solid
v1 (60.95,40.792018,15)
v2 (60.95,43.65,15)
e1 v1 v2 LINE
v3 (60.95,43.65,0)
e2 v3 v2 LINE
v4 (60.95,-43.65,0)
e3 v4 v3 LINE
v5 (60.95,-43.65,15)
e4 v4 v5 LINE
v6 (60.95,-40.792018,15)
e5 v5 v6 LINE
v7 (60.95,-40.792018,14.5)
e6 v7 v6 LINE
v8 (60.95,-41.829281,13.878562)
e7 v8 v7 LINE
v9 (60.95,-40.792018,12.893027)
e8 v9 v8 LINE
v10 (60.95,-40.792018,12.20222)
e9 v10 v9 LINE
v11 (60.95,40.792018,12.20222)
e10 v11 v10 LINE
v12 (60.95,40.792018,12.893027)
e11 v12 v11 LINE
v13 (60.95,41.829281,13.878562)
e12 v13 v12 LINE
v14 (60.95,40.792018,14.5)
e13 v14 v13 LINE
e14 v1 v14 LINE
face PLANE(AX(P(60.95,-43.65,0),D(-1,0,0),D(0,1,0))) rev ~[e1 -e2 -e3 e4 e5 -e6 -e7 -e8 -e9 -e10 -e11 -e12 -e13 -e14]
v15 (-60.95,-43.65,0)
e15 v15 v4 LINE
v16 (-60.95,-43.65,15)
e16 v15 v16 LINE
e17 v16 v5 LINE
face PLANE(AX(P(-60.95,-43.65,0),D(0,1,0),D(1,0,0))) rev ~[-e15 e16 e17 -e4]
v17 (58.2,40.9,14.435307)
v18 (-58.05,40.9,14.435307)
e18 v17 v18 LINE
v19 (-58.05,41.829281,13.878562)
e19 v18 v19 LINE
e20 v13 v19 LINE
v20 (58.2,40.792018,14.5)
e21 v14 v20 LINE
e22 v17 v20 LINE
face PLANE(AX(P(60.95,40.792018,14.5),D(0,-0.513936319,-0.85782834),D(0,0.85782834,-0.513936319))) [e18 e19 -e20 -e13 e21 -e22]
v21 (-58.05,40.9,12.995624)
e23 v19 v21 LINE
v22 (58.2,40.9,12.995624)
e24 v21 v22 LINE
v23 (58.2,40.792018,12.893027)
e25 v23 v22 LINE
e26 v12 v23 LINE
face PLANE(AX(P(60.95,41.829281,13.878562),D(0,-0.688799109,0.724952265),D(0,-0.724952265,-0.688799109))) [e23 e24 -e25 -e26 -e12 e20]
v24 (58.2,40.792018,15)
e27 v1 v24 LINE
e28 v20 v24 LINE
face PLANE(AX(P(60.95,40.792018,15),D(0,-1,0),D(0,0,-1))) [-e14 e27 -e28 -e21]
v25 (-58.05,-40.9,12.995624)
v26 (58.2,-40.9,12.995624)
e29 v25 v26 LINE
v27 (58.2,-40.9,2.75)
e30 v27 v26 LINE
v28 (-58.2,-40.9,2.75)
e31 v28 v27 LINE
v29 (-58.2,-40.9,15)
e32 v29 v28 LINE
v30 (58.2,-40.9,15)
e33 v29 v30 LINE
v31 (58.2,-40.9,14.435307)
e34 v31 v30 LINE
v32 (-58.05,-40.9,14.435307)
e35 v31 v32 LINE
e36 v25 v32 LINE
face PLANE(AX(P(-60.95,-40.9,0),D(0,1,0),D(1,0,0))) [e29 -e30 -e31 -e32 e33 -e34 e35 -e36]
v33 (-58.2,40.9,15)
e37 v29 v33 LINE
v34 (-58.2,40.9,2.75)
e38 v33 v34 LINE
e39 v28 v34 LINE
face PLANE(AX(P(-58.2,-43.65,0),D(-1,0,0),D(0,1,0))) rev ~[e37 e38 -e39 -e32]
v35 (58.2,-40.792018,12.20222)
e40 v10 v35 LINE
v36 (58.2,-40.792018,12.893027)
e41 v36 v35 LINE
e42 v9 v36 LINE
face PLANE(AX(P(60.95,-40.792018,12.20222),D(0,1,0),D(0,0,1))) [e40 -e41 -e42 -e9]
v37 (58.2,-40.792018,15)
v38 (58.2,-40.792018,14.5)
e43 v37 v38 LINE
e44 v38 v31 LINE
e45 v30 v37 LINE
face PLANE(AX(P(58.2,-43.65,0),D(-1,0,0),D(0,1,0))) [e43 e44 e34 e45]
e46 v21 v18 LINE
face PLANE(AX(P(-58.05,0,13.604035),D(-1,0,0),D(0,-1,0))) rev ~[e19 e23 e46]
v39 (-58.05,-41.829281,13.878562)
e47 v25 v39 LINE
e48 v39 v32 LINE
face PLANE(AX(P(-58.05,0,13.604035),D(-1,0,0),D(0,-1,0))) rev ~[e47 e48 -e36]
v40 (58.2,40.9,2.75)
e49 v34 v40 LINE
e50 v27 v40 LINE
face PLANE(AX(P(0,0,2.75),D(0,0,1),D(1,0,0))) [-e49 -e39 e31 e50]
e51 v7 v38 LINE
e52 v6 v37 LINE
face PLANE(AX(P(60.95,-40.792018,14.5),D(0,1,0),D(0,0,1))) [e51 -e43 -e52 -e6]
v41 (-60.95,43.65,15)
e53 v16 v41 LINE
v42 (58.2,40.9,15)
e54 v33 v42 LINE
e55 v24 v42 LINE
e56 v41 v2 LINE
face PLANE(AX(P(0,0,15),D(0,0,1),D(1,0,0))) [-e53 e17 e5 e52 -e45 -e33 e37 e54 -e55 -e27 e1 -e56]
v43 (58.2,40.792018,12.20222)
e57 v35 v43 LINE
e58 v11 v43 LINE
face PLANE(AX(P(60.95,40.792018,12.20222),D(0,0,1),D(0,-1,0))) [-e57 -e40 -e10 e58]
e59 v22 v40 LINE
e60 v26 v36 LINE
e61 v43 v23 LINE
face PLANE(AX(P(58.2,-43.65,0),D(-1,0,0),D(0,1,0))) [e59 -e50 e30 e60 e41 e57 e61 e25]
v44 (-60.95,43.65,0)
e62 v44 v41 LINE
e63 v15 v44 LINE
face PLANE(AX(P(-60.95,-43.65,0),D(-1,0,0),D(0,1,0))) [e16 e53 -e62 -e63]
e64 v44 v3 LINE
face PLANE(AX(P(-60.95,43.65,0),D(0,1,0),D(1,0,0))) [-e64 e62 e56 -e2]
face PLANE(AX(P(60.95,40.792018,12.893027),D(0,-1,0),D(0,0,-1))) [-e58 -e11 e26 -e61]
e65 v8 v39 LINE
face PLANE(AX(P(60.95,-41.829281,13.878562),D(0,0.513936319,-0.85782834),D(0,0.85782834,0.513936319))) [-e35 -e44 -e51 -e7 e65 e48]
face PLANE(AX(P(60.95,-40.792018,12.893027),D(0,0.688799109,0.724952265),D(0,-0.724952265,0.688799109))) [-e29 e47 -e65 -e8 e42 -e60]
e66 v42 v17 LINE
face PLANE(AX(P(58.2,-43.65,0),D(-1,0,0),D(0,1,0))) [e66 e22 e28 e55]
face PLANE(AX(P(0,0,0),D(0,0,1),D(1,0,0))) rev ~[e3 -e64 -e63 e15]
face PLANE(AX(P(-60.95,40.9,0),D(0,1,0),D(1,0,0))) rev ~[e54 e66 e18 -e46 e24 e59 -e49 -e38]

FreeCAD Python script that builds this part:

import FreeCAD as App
import Part
import Sketcher

V = App.Vector
Q = App.Units.Quantity


def faces_at(feature, points):
    """Names of the faces that lie closest to the given points."""
    faces = feature.Shape.Faces
    near = lambda p: min(range(len(faces)), key=lambda i: faces[i].distToShape(Part.Vertex(*p))[0])
    return sorted({f"Face{near(p) + 1}" for p in points})


def add_polygon(sketch, points):
    """Adds a closed chain of lines whose ends are joined by coincident constraints."""
    first, n = sketch.GeometryCount, len(points)
    for a, b in zip(points, points[1:] + points[:1]):
        sketch.addGeometry(Part.LineSegment(App.Vector(*a, 0), App.Vector(*b, 0)), False)
    for i in range(n):
        sketch.addConstraint(Sketcher.Constraint("Coincident", first + i, 2, first + (i + 1) % n, 1))

doc = App.newDocument("Part")
body = doc.addObject("PartDesign::Body", "Body")

sketch1 = body.newObject("Sketcher::SketchObject", "Sketch")
sketch1.AttachmentSupport = (doc.getObject("XY_Plane"), [""])
sketch1.MapMode = "FlatFace"
add_polygon(sketch1, [(-54.45, 38.15), (-54.45, -38.15), (54.45, -38.15), (54.45, 38.15)])
sketch1.addConstraint(Sketcher.Constraint("Vertical", 0))
sketch1.addConstraint(Sketcher.Constraint("Horizontal", 1))
sketch1.addConstraint(Sketcher.Constraint("Vertical", 2))
sketch1.addConstraint(Sketcher.Constraint("Horizontal", 3))
sketch1.addConstraint(Sketcher.Constraint("Symmetric", 0, 2, 2, 2, -1, 1))
sketch1.addConstraint(Sketcher.Constraint("DistanceX", 1, 1, 1, 2, Q("108.9 mm")))
sketch1.addConstraint(Sketcher.Constraint("DistanceY", 0, 2, 0, 1, Q("76.3 mm")))
pad1 = body.newObject("PartDesign::Pad", "Pad")
pad1.Profile = sketch1
pad1.Length = 15

sketch2 = body.newObject("Sketcher::SketchObject", "Sketch001")
sketch2.AttachmentSupport = (doc.getObject("XY_Plane"), [""])
sketch2.MapMode = "FlatFace"
add_polygon(sketch2, [(-60.95, 43.65), (-60.95, -43.65), (60.95, -43.65), (60.95, 43.65)])
sketch2.addConstraint(Sketcher.Constraint("Vertical", 0))
sketch2.addConstraint(Sketcher.Constraint("Horizontal", 1))
sketch2.addConstraint(Sketcher.Constraint("Vertical", 2))
sketch2.addConstraint(Sketcher.Constraint("Horizontal", 3))
sketch2.addConstraint(Sketcher.Constraint("Symmetric", 0, 2, 2, 2, -1, 1))
sketch2.addConstraint(Sketcher.Constraint("DistanceX", 1, 1, 1, 2, Q("121.9 mm")))
sketch2.addConstraint(Sketcher.Constraint("DistanceY", 0, 2, 0, 1, Q("87.3 mm")))
pad2 = body.newObject("PartDesign::Pad", "Pad001")
pad2.Profile = sketch2
pad2.Length = 15
doc.recompute()

thickness = body.newObject("PartDesign::Thickness", "Thickness")
thickness.Base = (pad2, faces_at(pad2, [(0, 0, 15)]))
thickness.Value = 2.75
thickness.Reversed = True
thickness.Join = "Arc"

sketch3 = body.newObject("Sketcher::SketchObject", "Sketch002")
sketch3.AttachmentSupport = (doc.getObject("YZ_Plane"), [""])
sketch3.MapMode = "FlatFace"
sketch3.AttachmentOffset = App.Placement(V(0, 0, 60.95), App.Rotation())
add_polygon(sketch3, [(-40.792018, 14.5), (-40.792018, 15), (40.792018, 15), (40.792018, 14.5), (41.829281, 13.878562), (40.792018, 12.893027), (40.792018, 12.20222), (-40.792018, 12.20222), (-40.792018, 12.893027), (-41.829281, 13.878562)])
sketch3.addConstraint(Sketcher.Constraint("Vertical", 0))
sketch3.addConstraint(Sketcher.Constraint("Horizontal", 1))
sketch3.addConstraint(Sketcher.Constraint("Vertical", 2))
sketch3.addConstraint(Sketcher.Constraint("Vertical", 5))
sketch3.addConstraint(Sketcher.Constraint("Horizontal", 6))
sketch3.addConstraint(Sketcher.Constraint("Vertical", 7))
sketch3.addConstraint(Sketcher.Constraint("Symmetric", 4, 2, 7, 2, -2))
sketch3.addConstraint(Sketcher.Constraint("Symmetric", 3, 2, 8, 2, -2))
sketch3.addConstraint(Sketcher.Constraint("Symmetric", 2, 2, 9, 2, -2))
sketch3.addConstraint(Sketcher.Constraint("Vertical", 2, 2, 4, 2))
sketch3.addConstraint(Sketcher.Constraint("DistanceY", 0, 1, 0, 2, Q("0.5 mm")))
sketch3.addConstraint(Sketcher.Constraint("DistanceY", -1, 1, 0, 2, Q("15 mm")))
sketch3.addConstraint(Sketcher.Constraint("Distance", 4, Q("1.430802 mm")))
sketch3.addConstraint(Sketcher.Constraint("DistanceX", 0, 2, 3, 2, Q("82.621299 mm")))
sketch3.addConstraint(Sketcher.Constraint("DistanceX", 1, 1, 1, 2, Q("81.584036 mm")))
sketch3.addConstraint(Sketcher.Constraint("DistanceY", 5, 2, 5, 1, Q("0.690807 mm")))
sketch3.addConstraint(Sketcher.Constraint("DistanceY", -1, 1, 5, 2, Q("12.20222 mm")))
pocket1 = body.newObject("PartDesign::Pocket", "Pocket")
pocket1.Profile = sketch3
pocket1.Length = 119

doc.recompute()
